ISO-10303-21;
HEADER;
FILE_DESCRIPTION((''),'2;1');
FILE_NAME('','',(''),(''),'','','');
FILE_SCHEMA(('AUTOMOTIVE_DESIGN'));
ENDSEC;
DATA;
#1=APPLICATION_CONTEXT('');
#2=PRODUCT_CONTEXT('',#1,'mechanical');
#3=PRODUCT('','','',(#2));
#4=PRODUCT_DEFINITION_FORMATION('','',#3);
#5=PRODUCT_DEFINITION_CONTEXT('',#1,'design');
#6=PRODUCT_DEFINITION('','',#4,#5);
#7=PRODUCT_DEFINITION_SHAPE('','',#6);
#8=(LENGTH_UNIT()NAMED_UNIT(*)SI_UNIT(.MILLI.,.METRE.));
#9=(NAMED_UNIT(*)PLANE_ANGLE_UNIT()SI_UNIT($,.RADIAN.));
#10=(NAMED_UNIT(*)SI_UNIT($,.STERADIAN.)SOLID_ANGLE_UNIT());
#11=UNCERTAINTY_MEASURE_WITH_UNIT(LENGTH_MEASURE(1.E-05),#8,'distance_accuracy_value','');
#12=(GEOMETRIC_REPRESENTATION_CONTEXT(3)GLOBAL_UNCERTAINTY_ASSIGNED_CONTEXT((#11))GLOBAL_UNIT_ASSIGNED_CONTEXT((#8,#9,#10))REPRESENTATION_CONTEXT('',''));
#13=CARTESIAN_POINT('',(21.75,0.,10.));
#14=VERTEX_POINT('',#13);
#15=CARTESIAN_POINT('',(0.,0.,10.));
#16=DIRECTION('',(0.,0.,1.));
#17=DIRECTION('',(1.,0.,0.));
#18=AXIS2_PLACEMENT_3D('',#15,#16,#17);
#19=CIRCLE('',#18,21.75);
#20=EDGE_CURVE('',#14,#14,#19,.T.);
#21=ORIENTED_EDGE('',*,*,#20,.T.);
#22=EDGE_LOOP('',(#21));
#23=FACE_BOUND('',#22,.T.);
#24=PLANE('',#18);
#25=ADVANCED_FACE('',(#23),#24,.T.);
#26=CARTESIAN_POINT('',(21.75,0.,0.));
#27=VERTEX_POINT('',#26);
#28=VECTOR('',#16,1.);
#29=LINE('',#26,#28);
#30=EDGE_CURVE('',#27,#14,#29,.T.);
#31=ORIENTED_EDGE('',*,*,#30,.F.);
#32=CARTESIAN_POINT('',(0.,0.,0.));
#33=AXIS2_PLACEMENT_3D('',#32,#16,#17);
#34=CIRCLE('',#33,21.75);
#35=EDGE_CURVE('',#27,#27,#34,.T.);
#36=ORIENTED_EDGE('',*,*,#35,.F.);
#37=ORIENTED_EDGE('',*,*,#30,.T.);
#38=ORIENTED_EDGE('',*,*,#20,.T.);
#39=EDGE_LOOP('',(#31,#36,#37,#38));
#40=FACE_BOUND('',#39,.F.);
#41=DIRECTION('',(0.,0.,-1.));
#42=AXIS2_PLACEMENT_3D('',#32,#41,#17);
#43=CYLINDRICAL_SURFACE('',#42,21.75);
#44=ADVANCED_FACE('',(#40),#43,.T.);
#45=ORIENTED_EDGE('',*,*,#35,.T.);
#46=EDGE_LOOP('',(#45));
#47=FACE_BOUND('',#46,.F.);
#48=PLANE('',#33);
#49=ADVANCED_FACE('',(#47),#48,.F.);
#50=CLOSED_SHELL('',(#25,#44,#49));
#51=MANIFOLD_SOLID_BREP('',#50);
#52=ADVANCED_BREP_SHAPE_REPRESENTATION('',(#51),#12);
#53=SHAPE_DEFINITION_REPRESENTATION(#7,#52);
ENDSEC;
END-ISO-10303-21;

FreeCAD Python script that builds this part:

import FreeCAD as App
import Part
import Sketcher
from FreeCAD import Vector

doc = App.newDocument("Part")
body = doc.addObject("PartDesign::Body", "Body")

# Sketch on XY plane
sketch1 = body.newObject("Sketcher::SketchObject", "Sketch")
sketch1.AttachmentSupport = (doc.getObject("XY_Plane"), [""])
sketch1.MapMode = "FlatFace"
sketch1.addGeometry(Part.Circle(Vector(0, 0, 0), Vector(0, 0, 1), 22), False)
sketch1.addConstraint([
    Sketcher.Constraint("Coincident", 0, 3, -1, 1),
    Sketcher.Constraint("Diameter", 0, 43.5),
])
pad1 = body.newObject("PartDesign::Pad", "Pad")
pad1.Profile = sketch1
pad1.Length = 10

doc.recompute()
